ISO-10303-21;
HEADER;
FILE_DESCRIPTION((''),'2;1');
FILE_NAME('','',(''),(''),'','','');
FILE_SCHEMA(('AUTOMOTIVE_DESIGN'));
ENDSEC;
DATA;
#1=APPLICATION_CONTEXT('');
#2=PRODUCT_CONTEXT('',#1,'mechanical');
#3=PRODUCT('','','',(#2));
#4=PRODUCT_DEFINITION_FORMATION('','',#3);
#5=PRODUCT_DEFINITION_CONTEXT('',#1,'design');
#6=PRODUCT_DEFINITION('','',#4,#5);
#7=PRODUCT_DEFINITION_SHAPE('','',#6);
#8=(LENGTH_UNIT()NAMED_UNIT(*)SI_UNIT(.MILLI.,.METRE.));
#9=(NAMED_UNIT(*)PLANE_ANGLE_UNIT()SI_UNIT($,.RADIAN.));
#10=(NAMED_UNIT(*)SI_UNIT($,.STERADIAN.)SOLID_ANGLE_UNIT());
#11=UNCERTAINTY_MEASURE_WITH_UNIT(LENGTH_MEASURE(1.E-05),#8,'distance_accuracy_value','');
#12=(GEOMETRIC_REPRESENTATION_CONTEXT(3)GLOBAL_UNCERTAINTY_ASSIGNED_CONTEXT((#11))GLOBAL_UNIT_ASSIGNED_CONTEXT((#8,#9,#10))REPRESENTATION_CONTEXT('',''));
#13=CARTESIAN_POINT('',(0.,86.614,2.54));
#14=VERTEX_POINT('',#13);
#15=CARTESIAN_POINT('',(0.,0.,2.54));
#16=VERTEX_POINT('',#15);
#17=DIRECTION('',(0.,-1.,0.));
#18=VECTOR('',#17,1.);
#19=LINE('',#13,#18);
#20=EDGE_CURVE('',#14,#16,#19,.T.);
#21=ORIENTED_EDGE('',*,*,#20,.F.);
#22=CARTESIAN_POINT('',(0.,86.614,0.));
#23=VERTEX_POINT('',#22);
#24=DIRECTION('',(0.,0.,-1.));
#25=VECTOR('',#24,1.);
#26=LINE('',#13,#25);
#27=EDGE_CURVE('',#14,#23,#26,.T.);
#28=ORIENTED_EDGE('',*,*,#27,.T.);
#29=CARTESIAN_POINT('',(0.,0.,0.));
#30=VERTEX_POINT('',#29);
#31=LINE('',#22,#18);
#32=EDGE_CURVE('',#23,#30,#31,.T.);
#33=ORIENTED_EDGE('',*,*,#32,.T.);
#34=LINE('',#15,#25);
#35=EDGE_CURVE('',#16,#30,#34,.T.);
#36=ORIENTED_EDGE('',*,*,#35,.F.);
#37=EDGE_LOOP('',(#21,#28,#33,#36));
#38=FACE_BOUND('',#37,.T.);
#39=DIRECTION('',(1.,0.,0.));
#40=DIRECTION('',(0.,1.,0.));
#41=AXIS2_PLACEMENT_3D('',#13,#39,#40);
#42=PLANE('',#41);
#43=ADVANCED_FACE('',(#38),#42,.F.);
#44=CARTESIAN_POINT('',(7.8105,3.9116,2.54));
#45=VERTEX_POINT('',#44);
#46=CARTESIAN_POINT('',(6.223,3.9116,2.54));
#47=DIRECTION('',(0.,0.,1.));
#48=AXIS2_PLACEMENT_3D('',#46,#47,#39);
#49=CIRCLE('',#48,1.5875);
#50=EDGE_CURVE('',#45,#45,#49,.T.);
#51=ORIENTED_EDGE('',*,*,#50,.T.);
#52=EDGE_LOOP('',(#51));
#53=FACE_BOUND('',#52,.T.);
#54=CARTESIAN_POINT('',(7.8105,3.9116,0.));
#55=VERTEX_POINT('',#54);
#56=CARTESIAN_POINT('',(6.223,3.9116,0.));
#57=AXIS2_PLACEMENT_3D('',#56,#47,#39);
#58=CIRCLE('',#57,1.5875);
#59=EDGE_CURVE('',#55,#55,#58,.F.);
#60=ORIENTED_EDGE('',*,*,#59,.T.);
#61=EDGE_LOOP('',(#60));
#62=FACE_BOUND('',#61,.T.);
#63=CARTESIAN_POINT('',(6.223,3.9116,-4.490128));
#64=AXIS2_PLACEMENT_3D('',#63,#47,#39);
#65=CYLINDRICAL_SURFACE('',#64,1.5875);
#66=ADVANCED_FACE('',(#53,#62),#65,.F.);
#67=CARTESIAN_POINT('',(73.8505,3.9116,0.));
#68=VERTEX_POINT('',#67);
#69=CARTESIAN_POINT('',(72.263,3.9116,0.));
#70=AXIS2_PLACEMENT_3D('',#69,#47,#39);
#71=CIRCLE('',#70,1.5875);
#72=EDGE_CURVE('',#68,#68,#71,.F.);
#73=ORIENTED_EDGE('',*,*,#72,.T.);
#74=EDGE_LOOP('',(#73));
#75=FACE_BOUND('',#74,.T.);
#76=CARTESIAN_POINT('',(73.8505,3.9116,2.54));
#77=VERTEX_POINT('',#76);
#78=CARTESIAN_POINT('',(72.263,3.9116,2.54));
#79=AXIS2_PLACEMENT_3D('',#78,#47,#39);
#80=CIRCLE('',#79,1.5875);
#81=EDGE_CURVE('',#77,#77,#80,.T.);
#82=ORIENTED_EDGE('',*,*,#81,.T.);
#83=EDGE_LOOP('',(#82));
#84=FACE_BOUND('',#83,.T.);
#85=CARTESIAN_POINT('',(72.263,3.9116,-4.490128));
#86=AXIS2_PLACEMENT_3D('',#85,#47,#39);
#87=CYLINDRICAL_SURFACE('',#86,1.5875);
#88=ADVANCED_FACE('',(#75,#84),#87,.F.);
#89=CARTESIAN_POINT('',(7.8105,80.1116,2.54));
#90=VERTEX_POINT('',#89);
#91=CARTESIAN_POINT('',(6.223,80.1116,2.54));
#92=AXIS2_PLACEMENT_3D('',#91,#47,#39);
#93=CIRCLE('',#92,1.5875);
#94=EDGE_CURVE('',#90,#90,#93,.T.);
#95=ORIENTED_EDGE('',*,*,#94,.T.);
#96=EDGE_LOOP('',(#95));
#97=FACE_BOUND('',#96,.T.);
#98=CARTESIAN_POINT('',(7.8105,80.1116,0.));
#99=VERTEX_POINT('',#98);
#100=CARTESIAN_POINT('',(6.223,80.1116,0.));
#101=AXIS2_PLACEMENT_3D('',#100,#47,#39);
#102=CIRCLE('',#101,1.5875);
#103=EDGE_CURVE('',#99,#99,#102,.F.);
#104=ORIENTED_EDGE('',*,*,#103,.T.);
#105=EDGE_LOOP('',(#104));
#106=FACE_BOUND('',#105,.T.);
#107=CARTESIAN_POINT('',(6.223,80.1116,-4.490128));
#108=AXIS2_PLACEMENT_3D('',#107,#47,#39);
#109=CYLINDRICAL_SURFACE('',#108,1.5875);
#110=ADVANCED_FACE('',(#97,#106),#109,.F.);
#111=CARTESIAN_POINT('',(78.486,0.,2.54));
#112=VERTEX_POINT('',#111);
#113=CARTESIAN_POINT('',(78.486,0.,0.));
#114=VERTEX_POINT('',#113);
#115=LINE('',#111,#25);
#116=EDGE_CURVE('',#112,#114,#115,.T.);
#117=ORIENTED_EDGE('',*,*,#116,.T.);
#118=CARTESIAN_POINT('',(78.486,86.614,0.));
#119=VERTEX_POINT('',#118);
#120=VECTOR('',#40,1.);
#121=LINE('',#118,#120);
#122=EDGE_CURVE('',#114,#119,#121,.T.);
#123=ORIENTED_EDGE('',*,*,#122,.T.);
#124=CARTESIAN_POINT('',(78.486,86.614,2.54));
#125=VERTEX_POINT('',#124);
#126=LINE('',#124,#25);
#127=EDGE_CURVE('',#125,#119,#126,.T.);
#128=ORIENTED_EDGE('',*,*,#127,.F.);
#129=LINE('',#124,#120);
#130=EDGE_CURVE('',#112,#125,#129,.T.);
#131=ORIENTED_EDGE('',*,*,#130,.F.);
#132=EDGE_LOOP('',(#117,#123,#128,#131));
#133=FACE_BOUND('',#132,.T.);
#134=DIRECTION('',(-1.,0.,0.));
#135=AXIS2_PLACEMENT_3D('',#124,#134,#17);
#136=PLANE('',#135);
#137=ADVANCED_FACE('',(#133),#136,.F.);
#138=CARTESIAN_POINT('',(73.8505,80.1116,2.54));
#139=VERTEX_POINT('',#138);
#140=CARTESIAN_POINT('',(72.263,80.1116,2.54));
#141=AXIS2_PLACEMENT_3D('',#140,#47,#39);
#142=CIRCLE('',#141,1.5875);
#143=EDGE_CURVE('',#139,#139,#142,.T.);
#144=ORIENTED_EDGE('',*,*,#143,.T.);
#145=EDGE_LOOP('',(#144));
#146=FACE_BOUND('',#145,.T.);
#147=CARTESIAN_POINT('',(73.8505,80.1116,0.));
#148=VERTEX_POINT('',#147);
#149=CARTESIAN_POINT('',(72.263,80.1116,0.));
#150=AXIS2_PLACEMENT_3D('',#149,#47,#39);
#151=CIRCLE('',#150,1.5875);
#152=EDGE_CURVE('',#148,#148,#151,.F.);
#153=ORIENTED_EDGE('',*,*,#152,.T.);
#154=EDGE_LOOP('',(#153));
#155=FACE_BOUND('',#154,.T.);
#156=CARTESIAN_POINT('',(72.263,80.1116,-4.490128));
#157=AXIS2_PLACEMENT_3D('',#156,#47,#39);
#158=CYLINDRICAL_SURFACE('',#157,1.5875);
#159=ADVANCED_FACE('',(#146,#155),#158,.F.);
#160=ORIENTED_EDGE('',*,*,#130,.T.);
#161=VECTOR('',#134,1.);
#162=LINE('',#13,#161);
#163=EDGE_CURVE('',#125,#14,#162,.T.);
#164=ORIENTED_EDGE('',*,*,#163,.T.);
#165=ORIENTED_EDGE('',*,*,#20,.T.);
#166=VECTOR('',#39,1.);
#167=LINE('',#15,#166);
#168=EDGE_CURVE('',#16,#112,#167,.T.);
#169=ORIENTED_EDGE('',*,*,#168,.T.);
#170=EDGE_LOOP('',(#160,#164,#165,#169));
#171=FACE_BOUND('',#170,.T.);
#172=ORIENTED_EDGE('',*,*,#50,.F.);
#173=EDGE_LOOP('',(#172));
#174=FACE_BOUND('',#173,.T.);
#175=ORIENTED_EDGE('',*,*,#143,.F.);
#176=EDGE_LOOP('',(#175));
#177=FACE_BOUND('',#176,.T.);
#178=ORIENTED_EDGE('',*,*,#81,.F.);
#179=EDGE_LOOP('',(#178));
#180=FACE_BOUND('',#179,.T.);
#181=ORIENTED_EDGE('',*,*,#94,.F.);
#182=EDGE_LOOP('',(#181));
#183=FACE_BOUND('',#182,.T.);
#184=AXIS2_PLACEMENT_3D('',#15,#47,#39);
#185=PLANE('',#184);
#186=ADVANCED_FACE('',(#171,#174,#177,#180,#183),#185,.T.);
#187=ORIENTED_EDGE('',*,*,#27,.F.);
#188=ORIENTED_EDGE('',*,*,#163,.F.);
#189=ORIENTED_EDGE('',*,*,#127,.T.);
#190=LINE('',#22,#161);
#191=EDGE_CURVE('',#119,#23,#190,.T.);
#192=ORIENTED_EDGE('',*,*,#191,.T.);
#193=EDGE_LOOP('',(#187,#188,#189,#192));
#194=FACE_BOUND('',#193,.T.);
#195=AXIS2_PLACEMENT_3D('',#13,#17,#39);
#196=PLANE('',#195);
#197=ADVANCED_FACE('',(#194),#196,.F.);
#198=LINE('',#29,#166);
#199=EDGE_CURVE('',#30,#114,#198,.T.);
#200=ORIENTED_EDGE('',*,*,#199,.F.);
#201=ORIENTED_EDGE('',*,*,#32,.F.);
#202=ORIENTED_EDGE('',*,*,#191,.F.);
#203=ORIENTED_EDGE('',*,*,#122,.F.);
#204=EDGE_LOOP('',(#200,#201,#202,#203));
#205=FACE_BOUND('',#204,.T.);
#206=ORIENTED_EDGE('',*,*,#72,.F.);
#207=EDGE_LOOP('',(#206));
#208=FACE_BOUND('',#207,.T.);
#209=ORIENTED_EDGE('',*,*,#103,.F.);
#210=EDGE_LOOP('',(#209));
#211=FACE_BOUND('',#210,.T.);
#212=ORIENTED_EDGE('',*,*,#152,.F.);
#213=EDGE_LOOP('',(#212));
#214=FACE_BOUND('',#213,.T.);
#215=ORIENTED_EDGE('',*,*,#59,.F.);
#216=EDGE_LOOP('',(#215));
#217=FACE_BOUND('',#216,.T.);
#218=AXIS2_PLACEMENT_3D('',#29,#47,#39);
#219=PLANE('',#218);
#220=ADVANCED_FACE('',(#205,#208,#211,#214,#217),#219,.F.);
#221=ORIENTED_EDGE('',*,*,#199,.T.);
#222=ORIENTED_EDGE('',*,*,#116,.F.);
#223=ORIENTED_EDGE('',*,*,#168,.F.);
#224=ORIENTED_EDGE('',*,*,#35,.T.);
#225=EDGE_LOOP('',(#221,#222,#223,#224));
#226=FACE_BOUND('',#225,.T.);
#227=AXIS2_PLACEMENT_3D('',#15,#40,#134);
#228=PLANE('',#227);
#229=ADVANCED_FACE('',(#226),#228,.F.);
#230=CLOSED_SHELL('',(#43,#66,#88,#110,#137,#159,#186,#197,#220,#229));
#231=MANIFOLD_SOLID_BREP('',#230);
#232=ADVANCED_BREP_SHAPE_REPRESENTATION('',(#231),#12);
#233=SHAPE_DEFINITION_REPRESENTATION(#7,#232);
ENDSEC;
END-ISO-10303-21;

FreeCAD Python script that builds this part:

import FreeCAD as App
import Part
import Sketcher
Q = App.Units.Quantity


def add_polygon(sketch, points):
    """Adds a closed chain of lines whose ends are joined by coincident constraints."""
    first, n = sketch.GeometryCount, len(points)
    for a, b in zip(points, points[1:] + points[:1]):
        sketch.addGeometry(Part.LineSegment(App.Vector(*a, 0), App.Vector(*b, 0)), False)
    for i in range(n):
        sketch.addConstraint(Sketcher.Constraint("Coincident", first + i, 2, first + (i + 1) % n, 1))

doc = App.newDocument("Part")
body = doc.addObject("PartDesign::Body", "Body")

sketch1 = body.newObject("Sketcher::SketchObject", "Sketch")
sketch1.AttachmentSupport = (doc.getObject("XY_Plane"), [""])
sketch1.MapMode = "FlatFace"
add_polygon(sketch1, [(0, 87), (0, 0), (78, 0), (78, 87)])
sketch1.addConstraint([
    Sketcher.Constraint("Vertical", 0),
    Sketcher.Constraint("Horizontal", 1),
    Sketcher.Constraint("Vertical", 2),
    Sketcher.Constraint("Horizontal", 3),
    Sketcher.Constraint("Coincident", 0, 2, -1, 1),
    Sketcher.Constraint("DistanceX", 1, 1, 1, 2, Q("3.09 in")),
    Sketcher.Constraint("DistanceY", 0, 2, 0, 1, Q("3.41 in")),
])
pad1 = body.newObject("PartDesign::Pad", "Pad")
pad1.Profile = sketch1
pad1.Length = Q("0.1 in")

sketch2 = body.newObject("Sketcher::SketchObject", "Sketch001")
sketch2.AttachmentSupport = (doc.getObject("XY_Plane"), [""])
sketch2.MapMode = "FlatFace"
sketch2.AttachmentOffset = App.Placement(App.Vector(0, 0, 0.1 * 25.4), App.Rotation())
sketch2.addGeometry([
    Part.Circle(App.Vector(6.2, 80.1, 0), App.Vector(0, 0, 1), 1.6),
    Part.Circle(App.Vector(72.3, 80.1, 0), App.Vector(0, 0, 1), 1.6),
    Part.Circle(App.Vector(72.3, 3.9, 0), App.Vector(0, 0, 1), 1.6),
    Part.Circle(App.Vector(6.2, 3.9, 0), App.Vector(0, 0, 1), 1.6),
], False)
sketch2.addConstraint([
    Sketcher.Constraint("Equal", 0, 1),
    Sketcher.Constraint("Equal", 1, 2),
    Sketcher.Constraint("Equal", 2, 3),
    Sketcher.Constraint("Horizontal", 0, 3, 1, 3),
    Sketcher.Constraint("Horizontal", 2, 3, 3, 3),
    Sketcher.Constraint("Vertical", 1, 3, 2, 3),
    Sketcher.Constraint("Vertical", 0, 3, 3, 3),
    Sketcher.Constraint("Diameter", 0, Q("0.125 in")),
    Sketcher.Constraint("DistanceY", 2, 3, 1, 3, Q("3 in")),
    Sketcher.Constraint("DistanceX", 0, 3, 1, 3, Q("2.6 in")),
    Sketcher.Constraint("DistanceX", -1, 1, 0, 3, Q("0.245 in")),
    Sketcher.Constraint("DistanceY", -1, 1, 0, 3, Q("3.154 in")),
])
pocket1 = body.newObject("PartDesign::Pocket", "Pocket")
pocket1.Profile = sketch2
pocket1.Length = Q("0.1 in")

doc.recompute()
